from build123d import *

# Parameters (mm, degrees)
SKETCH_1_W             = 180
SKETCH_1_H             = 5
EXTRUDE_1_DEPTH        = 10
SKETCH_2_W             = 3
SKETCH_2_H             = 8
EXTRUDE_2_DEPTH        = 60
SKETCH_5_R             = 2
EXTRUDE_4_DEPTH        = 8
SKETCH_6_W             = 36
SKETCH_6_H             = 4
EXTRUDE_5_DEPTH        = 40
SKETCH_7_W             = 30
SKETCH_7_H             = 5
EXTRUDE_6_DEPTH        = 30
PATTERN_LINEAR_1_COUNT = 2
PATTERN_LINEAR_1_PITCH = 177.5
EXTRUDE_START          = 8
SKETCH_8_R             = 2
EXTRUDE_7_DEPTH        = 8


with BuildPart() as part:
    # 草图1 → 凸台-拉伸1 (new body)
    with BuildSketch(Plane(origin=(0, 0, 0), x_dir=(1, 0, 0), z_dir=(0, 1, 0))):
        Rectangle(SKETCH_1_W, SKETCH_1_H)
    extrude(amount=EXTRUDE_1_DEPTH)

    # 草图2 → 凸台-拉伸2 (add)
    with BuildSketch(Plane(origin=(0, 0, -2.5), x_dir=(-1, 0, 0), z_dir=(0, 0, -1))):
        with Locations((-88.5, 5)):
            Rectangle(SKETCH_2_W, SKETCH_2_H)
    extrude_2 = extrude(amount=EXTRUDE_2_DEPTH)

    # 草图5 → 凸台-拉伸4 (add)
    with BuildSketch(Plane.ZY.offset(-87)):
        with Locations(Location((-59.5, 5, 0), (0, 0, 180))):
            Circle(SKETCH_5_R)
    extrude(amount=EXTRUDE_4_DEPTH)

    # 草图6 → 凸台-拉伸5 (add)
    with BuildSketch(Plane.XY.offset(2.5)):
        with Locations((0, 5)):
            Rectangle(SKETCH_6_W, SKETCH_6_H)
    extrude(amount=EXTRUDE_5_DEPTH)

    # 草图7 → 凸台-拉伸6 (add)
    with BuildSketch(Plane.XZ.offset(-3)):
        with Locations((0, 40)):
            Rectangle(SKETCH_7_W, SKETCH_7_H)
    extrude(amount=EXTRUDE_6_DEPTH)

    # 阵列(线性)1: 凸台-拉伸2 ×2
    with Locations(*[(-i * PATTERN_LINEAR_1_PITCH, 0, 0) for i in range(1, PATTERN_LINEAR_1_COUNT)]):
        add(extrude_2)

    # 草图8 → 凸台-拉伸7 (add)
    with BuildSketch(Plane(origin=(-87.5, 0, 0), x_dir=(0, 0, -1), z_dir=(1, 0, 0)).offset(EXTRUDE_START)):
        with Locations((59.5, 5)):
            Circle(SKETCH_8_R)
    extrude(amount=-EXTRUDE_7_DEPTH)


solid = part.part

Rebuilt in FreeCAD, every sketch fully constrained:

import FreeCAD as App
import Part
import Sketcher

V = App.Vector
Q = App.Units.Quantity


def add_polygon(sketch, points):
    """Adds a closed chain of lines whose ends are joined by coincident constraints."""
    first, n = sketch.GeometryCount, len(points)
    for a, b in zip(points, points[1:] + points[:1]):
        sketch.addGeometry(Part.LineSegment(App.Vector(*a, 0), App.Vector(*b, 0)), False)
    for i in range(n):
        sketch.addConstraint(Sketcher.Constraint("Coincident", first + i, 2, first + (i + 1) % n, 1))

doc = App.newDocument("Part")
body = doc.addObject("PartDesign::Body", "Body")

sketch1 = body.newObject("Sketcher::SketchObject", "Sketch")
sketch1.AttachmentSupport = (doc.getObject("XZ_Plane"), [""])
sketch1.MapMode = "FlatFace"
add_polygon(sketch1, [(-90, -2), (-90, 2), (90, 2), (90, -2)])
sketch1.addConstraint([
    Sketcher.Constraint("Vertical", 0),
    Sketcher.Constraint("Horizontal", 1),
    Sketcher.Constraint("Vertical", 2),
    Sketcher.Constraint("Horizontal", 3),
    Sketcher.Constraint("Symmetric", 0, 2, 2, 2, -1, 1),
    Sketcher.Constraint("DistanceX", 1, 1, 1, 2, Q("180 mm")),
    Sketcher.Constraint("DistanceY", 0, 1, 0, 2, Q("5 mm")),
])
pad1 = body.newObject("PartDesign::Pad", "Pad")
pad1.Profile = sketch1
pad1.Length = 10
pad1.Reversed = True

sketch2 = body.newObject("Sketcher::SketchObject", "Sketch001")
sketch2.AttachmentSupport = (doc.getObject("XY_Plane"), [""])
sketch2.MapMode = "FlatFace"
sketch2.AttachmentOffset = App.Placement(V(0, 0, -2.5), App.Rotation())
add_polygon(sketch2, [(90, 9), (90, 1), (87, 1), (87, 9)])
sketch2.addConstraint([
    Sketcher.Constraint("Vertical", 0),
    Sketcher.Constraint("Horizontal", 1),
    Sketcher.Constraint("Vertical", 2),
    Sketcher.Constraint("Horizontal", 3),
    Sketcher.Constraint("DistanceX", 1, 2, 1, 1, Q("3 mm")),
    Sketcher.Constraint("DistanceY", 0, 2, 0, 1, Q("8 mm")),
    Sketcher.Constraint("DistanceX", -1, 1, 0, 2, Q("90 mm")),
    Sketcher.Constraint("DistanceY", -1, 1, 0, 2, Q("1 mm")),
])
pad2 = body.newObject("PartDesign::Pad", "Pad001")
pad2.Profile = sketch2
pad2.Length = 60
pad2.Reversed = True

sketch3 = body.newObject("Sketcher::SketchObject", "Sketch002")
sketch3.AttachmentSupport = (doc.getObject("YZ_Plane"), [""])
sketch3.MapMode = "FlatFace"
sketch3.AttachmentOffset = App.Placement(V(0, 0, 87), App.Rotation())
sketch3.addGeometry(Part.Circle(V(5, -59.5, 0), V(0, 0, 1), 2), False)
sketch3.addConstraint([
    Sketcher.Constraint("Diameter", 0, Q("4 mm")),
    Sketcher.Constraint("DistanceX", -1, 1, 0, 3, Q("5 mm")),
    Sketcher.Constraint("DistanceY", 0, 3, -1, 1, Q("59.5 mm")),
])
pad3 = body.newObject("PartDesign::Pad", "Pad002")
pad3.Profile = sketch3
pad3.Length = 8
pad3.Reversed = True

sketch4 = body.newObject("Sketcher::SketchObject", "Sketch003")
sketch4.AttachmentSupport = (doc.getObject("XY_Plane"), [""])
sketch4.MapMode = "FlatFace"
sketch4.AttachmentOffset = App.Placement(V(0, 0, 2.5), App.Rotation())
add_polygon(sketch4, [(-18, 7), (-18, 3), (18, 3), (18, 7)])
sketch4.addConstraint([
    Sketcher.Constraint("Vertical", 0),
    Sketcher.Constraint("Horizontal", 1),
    Sketcher.Constraint("Vertical", 2),
    Sketcher.Constraint("Horizontal", 3),
    Sketcher.Constraint("DistanceX", 1, 1, 1, 2, Q("36 mm")),
    Sketcher.Constraint("DistanceY", 0, 2, 0, 1, Q("4 mm")),
    Sketcher.Constraint("DistanceX", 0, 2, -1, 1, Q("18 mm")),
    Sketcher.Constraint("DistanceY", -1, 1, 0, 2, Q("3 mm")),
])
pad4 = body.newObject("PartDesign::Pad", "Pad003")
pad4.Profile = sketch4
pad4.Length = 40

sketch5 = body.newObject("Sketcher::SketchObject", "Sketch004")
sketch5.AttachmentSupport = (doc.getObject("XZ_Plane"), [""])
sketch5.MapMode = "FlatFace"
sketch5.AttachmentOffset = App.Placement(V(0, 0, -3), App.Rotation())
add_polygon(sketch5, [(-15, 42), (-15, 38), (15, 38), (15, 42)])
sketch5.addConstraint([
    Sketcher.Constraint("Vertical", 0),
    Sketcher.Constraint("Horizontal", 1),
    Sketcher.Constraint("Vertical", 2),
    Sketcher.Constraint("Horizontal", 3),
    Sketcher.Constraint("DistanceX", 1, 1, 1, 2, Q("30 mm")),
    Sketcher.Constraint("DistanceY", 0, 2, 0, 1, Q("5 mm")),
    Sketcher.Constraint("DistanceX", 0, 2, -1, 1, Q("15 mm")),
    Sketcher.Constraint("DistanceY", -1, 1, 0, 2, Q("37.5 mm")),
])
pad5 = body.newObject("PartDesign::Pad", "Pad004")
pad5.Profile = sketch5
pad5.Length = 30
doc.recompute()

linearpattern = body.newObject("PartDesign::LinearPattern", "LinearPattern")
linearpattern.Originals = [pad2]
linearpattern.Direction = (doc.getObject("X_Axis"), [""])
linearpattern.Mode = "offset"
linearpattern.Offset = 177.5
linearpattern.Occurrences = 2
linearpattern.Reversed = True
body.Tip = linearpattern

sketch6 = body.newObject("Sketcher::SketchObject", "Sketch005")
sketch6.AttachmentSupport = (doc.getObject("YZ_Plane"), [""])
sketch6.MapMode = "FlatFace"
sketch6.AttachmentOffset = App.Placement(V(0, 0, -79.5), App.Rotation())
sketch6.addGeometry(Part.Circle(V(5, -59.5, 0), V(0, 0, 1), 2), False)
sketch6.addConstraint([
    Sketcher.Constraint("Diameter", 0, Q("4 mm")),
    Sketcher.Constraint("DistanceX", -1, 1, 0, 3, Q("5 mm")),
    Sketcher.Constraint("DistanceY", 0, 3, -1, 1, Q("59.5 mm")),
])
pad6 = body.newObject("PartDesign::Pad", "Pad005")
pad6.Profile = sketch6
pad6.Length = 8
pad6.Reversed = True

doc.recompute()
